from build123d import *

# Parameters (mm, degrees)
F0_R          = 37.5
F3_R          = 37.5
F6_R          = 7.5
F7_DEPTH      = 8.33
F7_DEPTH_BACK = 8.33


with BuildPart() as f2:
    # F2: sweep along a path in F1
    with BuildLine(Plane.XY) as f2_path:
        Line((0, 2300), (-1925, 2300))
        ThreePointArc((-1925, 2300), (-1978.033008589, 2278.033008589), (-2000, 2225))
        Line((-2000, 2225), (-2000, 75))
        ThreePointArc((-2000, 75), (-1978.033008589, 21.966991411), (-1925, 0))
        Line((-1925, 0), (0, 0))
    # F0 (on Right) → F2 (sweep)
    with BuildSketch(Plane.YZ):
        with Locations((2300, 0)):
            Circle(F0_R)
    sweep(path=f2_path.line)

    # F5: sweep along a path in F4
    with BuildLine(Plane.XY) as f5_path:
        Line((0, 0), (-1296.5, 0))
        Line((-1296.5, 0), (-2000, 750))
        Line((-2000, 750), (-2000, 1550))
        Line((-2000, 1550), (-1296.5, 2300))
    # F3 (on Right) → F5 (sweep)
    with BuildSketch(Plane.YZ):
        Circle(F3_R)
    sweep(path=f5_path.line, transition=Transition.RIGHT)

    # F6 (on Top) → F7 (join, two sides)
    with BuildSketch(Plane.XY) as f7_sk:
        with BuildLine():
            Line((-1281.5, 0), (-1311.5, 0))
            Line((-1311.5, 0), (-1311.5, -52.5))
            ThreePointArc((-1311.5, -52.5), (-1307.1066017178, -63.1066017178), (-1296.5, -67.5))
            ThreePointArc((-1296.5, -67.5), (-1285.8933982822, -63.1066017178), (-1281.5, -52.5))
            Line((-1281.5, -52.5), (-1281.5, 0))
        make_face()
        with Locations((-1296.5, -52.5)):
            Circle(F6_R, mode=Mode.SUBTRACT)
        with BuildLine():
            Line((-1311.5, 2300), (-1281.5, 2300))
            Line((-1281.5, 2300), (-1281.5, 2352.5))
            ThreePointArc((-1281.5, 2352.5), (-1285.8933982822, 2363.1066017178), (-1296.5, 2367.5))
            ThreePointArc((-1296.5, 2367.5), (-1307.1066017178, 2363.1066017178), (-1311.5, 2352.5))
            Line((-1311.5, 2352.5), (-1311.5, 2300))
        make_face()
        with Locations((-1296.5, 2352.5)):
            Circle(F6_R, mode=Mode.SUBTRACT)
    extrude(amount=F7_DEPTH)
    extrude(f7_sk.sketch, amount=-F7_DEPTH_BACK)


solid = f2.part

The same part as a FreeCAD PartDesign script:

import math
import FreeCAD as App
import Part
import Sketcher
Q = App.Units.Quantity

doc = App.newDocument("Part")
body = doc.addObject("PartDesign::Body", "Body")

# Sketch on YZ plane
sketch1 = body.newObject("Sketcher::SketchObject", "Sketch")
sketch1.AttachmentSupport = (doc.getObject("YZ_Plane"), [""])
sketch1.MapMode = "FlatFace"
sketch1.addGeometry(Part.Circle(App.Vector(2300, 0, 0), App.Vector(0, 0, 1), 38), False)
sketch1.addConstraint([
    Sketcher.Constraint("PointOnObject", 0, 3, -1),
    Sketcher.Constraint("Diameter", 0, Q("75 mm")),
    Sketcher.Constraint("DistanceX", -1, 1, 0, 3, Q("2300 mm")),
])

# Sketch on XY plane
sketch2 = body.newObject("Sketcher::SketchObject", "Sketch001")
sketch2.AttachmentSupport = (doc.getObject("XY_Plane"), [""])
sketch2.MapMode = "FlatFace"
sketch2.addGeometry([
    Part.LineSegment(App.Vector(0, 2300, 0), App.Vector(-1925, 2300, 0)),  # 0
    Part.ArcOfCircle(Part.Circle(App.Vector(-1925, 2225, 0), App.Vector(0, 0, 1), 75), math.radians(90), math.radians(180)),  # 1
    Part.LineSegment(App.Vector(-2000, 2225, 0), App.Vector(-2000, 75, 0)),  # 2
    Part.ArcOfCircle(Part.Circle(App.Vector(-1925, 75, 0), App.Vector(0, 0, 1), 75), math.radians(180), math.radians(270)),  # 3
    Part.LineSegment(App.Vector(-1925, 0, 0), App.Vector(0, 0, 0)),  # 4
], False)
sketch2.addConstraint([
    Sketcher.Constraint("Tangent", 0, 2, 1, 1),
    Sketcher.Constraint("Tangent", 1, 2, 2, 1),
    Sketcher.Constraint("Tangent", 2, 2, 3, 1),
    Sketcher.Constraint("Tangent", 3, 2, 4, 1),
    Sketcher.Constraint("Horizontal", 0),
    Sketcher.Constraint("Vertical", 2),
    Sketcher.Constraint("Horizontal", 4),
    Sketcher.Constraint("Coincident", 4, 2, -1, 1),
    Sketcher.Constraint("Equal", 1, 3),
    Sketcher.Constraint("PointOnObject", 0, 1, -2),
    Sketcher.Constraint("Radius", 1, Q("75 mm")),
    Sketcher.Constraint("DistanceX", 0, 2, 0, 1, Q("1925 mm")),
    Sketcher.Constraint("DistanceY", 2, 2, 2, 1, Q("2150 mm")),
])
doc.recompute()

additivepipe = body.newObject("PartDesign::AdditivePipe", "AdditivePipe")
additivepipe.Profile = sketch1
additivepipe.Spine = (sketch2, ["Edge1", "Edge2", "Edge3", "Edge4", "Edge5"])

# Sketch on YZ plane
sketch3 = body.newObject("Sketcher::SketchObject", "Sketch002")
sketch3.AttachmentSupport = (doc.getObject("YZ_Plane"), [""])
sketch3.MapMode = "FlatFace"
sketch3.addGeometry(Part.Circle(App.Vector(0, 0, 0), App.Vector(0, 0, 1), 38), False)
sketch3.addConstraint([
    Sketcher.Constraint("Coincident", 0, 3, -1, 1),
    Sketcher.Constraint("Diameter", 0, Q("75 mm")),
])

# Sketch on XY plane
sketch4 = body.newObject("Sketcher::SketchObject", "Sketch003")
sketch4.AttachmentSupport = (doc.getObject("XY_Plane"), [""])
sketch4.MapMode = "FlatFace"
sketch4.addGeometry([
    Part.LineSegment(App.Vector(0, 0, 0), App.Vector(-1296, 0, 0)),
    Part.LineSegment(App.Vector(-1296, 0, 0), App.Vector(-2000, 750, 0)),
    Part.LineSegment(App.Vector(-2000, 750, 0), App.Vector(-2000, 1550, 0)),
    Part.LineSegment(App.Vector(-2000, 1550, 0), App.Vector(-1296, 2300, 0)),
], False)
sketch4.addConstraint([
    Sketcher.Constraint("Coincident", 0, 2, 1, 1),
    Sketcher.Constraint("Coincident", 1, 2, 2, 1),
    Sketcher.Constraint("Coincident", 2, 2, 3, 1),
    Sketcher.Constraint("Horizontal", 0),
    Sketcher.Constraint("Vertical", 2),
    Sketcher.Constraint("Coincident", 0, 1, -1, 1),
    Sketcher.Constraint("Vertical", 0, 2, 3, 2),
    Sketcher.Constraint("Equal", 1, 3),
    Sketcher.Constraint("DistanceY", 2, 1, 2, 2, Q("800 mm")),
    Sketcher.Constraint("DistanceX", 0, 2, 0, 1, Q("1296.5 mm")),
    Sketcher.Constraint("DistanceX", 1, 2, -1, 1, Q("2000 mm")),
    Sketcher.Constraint("DistanceY", -1, 1, 1, 2, Q("750 mm")),
])
doc.recompute()

additivepipe2 = body.newObject("PartDesign::AdditivePipe", "AdditivePipe001")
additivepipe2.Profile = sketch3
additivepipe2.Spine = (sketch4, ["Edge1", "Edge2", "Edge3", "Edge4"])
additivepipe2.Transition = "Right corner"

# Sketch on XY plane
sketch5 = body.newObject("Sketcher::SketchObject", "Sketch004")
sketch5.AttachmentSupport = (doc.getObject("XY_Plane"), [""])
sketch5.MapMode = "FlatFace"
sketch5.addGeometry([
    Part.LineSegment(App.Vector(-1282, 0, 0), App.Vector(-1312, 0, 0)),  # 0
    Part.LineSegment(App.Vector(-1312, 0, 0), App.Vector(-1312, -52, 0)),  # 1
    Part.ArcOfCircle(Part.Circle(App.Vector(-1296, -52, 0), App.Vector(0, 0, 1), 15), math.radians(180), math.radians(360)),  # 2
    Part.LineSegment(App.Vector(-1282, -52, 0), App.Vector(-1282, 0, 0)),  # 3
    Part.Circle(App.Vector(-1296, -52, 0), App.Vector(0, 0, 1), 8),  # 4
    Part.LineSegment(App.Vector(-1312, 2300, 0), App.Vector(-1282, 2300, 0)),  # 5
    Part.LineSegment(App.Vector(-1282, 2300, 0), App.Vector(-1282, 2352, 0)),  # 6
    Part.ArcOfCircle(Part.Circle(App.Vector(-1296, 2352, 0), App.Vector(0, 0, 1), 15), math.radians(0), math.radians(180)),  # 7
    Part.LineSegment(App.Vector(-1312, 2352, 0), App.Vector(-1312, 2300, 0)),  # 8
    Part.Circle(App.Vector(-1296, 2352, 0), App.Vector(0, 0, 1), 8),  # 9
], False)
sketch5.addConstraint([
    Sketcher.Constraint("Coincident", 0, 2, 1, 1),
    Sketcher.Constraint("Tangent", 1, 2, 2, 1),
    Sketcher.Constraint("Tangent", 2, 2, 3, 1),
    Sketcher.Constraint("Coincident", 3, 2, 0, 1),
    Sketcher.Constraint("Coincident", 5, 2, 6, 1),
    Sketcher.Constraint("Tangent", 6, 2, 7, 1),
    Sketcher.Constraint("Tangent", 7, 2, 8, 1),
    Sketcher.Constraint("Coincident", 8, 2, 5, 1),
    Sketcher.Constraint("Horizontal", 0),
    Sketcher.Constraint("Vertical", 1),
    Sketcher.Constraint("Vertical", 3),
    Sketcher.Constraint("Horizontal", 5),
    Sketcher.Constraint("Vertical", 6),
    Sketcher.Constraint("Vertical", 8),
    Sketcher.Constraint("Coincident", 4, 3, 2, 3),
    Sketcher.Constraint("Coincident", 9, 3, 7, 3),
    Sketcher.Constraint("Equal", 2, 7),
    Sketcher.Constraint("Equal", 4, 9),
    Sketcher.Constraint("PointOnObject", 0, 2, -1),
    Sketcher.Constraint("Vertical", 4, 3, 7, 3),
    Sketcher.Constraint("Equal", 3, 6),
    Sketcher.Constraint("Diameter", 4, Q("15 mm")),
    Sketcher.Constraint("Radius", 2, Q("15 mm")),
    Sketcher.Constraint("DistanceY", 1, 2, 1, 1, Q("52.5 mm")),
    Sketcher.Constraint("DistanceY", -1, 1, 5, 2, Q("2300 mm")),
    Sketcher.Constraint("DistanceX", 2, 3, -1, 1, Q("1296.5 mm")),
])
pad1 = body.newObject("PartDesign::Pad", "Pad")
pad1.Profile = sketch5
pad1.Type = "TwoLengths"
pad1.Length = 8.33
pad1.Length2 = 8.33

doc.recompute()
